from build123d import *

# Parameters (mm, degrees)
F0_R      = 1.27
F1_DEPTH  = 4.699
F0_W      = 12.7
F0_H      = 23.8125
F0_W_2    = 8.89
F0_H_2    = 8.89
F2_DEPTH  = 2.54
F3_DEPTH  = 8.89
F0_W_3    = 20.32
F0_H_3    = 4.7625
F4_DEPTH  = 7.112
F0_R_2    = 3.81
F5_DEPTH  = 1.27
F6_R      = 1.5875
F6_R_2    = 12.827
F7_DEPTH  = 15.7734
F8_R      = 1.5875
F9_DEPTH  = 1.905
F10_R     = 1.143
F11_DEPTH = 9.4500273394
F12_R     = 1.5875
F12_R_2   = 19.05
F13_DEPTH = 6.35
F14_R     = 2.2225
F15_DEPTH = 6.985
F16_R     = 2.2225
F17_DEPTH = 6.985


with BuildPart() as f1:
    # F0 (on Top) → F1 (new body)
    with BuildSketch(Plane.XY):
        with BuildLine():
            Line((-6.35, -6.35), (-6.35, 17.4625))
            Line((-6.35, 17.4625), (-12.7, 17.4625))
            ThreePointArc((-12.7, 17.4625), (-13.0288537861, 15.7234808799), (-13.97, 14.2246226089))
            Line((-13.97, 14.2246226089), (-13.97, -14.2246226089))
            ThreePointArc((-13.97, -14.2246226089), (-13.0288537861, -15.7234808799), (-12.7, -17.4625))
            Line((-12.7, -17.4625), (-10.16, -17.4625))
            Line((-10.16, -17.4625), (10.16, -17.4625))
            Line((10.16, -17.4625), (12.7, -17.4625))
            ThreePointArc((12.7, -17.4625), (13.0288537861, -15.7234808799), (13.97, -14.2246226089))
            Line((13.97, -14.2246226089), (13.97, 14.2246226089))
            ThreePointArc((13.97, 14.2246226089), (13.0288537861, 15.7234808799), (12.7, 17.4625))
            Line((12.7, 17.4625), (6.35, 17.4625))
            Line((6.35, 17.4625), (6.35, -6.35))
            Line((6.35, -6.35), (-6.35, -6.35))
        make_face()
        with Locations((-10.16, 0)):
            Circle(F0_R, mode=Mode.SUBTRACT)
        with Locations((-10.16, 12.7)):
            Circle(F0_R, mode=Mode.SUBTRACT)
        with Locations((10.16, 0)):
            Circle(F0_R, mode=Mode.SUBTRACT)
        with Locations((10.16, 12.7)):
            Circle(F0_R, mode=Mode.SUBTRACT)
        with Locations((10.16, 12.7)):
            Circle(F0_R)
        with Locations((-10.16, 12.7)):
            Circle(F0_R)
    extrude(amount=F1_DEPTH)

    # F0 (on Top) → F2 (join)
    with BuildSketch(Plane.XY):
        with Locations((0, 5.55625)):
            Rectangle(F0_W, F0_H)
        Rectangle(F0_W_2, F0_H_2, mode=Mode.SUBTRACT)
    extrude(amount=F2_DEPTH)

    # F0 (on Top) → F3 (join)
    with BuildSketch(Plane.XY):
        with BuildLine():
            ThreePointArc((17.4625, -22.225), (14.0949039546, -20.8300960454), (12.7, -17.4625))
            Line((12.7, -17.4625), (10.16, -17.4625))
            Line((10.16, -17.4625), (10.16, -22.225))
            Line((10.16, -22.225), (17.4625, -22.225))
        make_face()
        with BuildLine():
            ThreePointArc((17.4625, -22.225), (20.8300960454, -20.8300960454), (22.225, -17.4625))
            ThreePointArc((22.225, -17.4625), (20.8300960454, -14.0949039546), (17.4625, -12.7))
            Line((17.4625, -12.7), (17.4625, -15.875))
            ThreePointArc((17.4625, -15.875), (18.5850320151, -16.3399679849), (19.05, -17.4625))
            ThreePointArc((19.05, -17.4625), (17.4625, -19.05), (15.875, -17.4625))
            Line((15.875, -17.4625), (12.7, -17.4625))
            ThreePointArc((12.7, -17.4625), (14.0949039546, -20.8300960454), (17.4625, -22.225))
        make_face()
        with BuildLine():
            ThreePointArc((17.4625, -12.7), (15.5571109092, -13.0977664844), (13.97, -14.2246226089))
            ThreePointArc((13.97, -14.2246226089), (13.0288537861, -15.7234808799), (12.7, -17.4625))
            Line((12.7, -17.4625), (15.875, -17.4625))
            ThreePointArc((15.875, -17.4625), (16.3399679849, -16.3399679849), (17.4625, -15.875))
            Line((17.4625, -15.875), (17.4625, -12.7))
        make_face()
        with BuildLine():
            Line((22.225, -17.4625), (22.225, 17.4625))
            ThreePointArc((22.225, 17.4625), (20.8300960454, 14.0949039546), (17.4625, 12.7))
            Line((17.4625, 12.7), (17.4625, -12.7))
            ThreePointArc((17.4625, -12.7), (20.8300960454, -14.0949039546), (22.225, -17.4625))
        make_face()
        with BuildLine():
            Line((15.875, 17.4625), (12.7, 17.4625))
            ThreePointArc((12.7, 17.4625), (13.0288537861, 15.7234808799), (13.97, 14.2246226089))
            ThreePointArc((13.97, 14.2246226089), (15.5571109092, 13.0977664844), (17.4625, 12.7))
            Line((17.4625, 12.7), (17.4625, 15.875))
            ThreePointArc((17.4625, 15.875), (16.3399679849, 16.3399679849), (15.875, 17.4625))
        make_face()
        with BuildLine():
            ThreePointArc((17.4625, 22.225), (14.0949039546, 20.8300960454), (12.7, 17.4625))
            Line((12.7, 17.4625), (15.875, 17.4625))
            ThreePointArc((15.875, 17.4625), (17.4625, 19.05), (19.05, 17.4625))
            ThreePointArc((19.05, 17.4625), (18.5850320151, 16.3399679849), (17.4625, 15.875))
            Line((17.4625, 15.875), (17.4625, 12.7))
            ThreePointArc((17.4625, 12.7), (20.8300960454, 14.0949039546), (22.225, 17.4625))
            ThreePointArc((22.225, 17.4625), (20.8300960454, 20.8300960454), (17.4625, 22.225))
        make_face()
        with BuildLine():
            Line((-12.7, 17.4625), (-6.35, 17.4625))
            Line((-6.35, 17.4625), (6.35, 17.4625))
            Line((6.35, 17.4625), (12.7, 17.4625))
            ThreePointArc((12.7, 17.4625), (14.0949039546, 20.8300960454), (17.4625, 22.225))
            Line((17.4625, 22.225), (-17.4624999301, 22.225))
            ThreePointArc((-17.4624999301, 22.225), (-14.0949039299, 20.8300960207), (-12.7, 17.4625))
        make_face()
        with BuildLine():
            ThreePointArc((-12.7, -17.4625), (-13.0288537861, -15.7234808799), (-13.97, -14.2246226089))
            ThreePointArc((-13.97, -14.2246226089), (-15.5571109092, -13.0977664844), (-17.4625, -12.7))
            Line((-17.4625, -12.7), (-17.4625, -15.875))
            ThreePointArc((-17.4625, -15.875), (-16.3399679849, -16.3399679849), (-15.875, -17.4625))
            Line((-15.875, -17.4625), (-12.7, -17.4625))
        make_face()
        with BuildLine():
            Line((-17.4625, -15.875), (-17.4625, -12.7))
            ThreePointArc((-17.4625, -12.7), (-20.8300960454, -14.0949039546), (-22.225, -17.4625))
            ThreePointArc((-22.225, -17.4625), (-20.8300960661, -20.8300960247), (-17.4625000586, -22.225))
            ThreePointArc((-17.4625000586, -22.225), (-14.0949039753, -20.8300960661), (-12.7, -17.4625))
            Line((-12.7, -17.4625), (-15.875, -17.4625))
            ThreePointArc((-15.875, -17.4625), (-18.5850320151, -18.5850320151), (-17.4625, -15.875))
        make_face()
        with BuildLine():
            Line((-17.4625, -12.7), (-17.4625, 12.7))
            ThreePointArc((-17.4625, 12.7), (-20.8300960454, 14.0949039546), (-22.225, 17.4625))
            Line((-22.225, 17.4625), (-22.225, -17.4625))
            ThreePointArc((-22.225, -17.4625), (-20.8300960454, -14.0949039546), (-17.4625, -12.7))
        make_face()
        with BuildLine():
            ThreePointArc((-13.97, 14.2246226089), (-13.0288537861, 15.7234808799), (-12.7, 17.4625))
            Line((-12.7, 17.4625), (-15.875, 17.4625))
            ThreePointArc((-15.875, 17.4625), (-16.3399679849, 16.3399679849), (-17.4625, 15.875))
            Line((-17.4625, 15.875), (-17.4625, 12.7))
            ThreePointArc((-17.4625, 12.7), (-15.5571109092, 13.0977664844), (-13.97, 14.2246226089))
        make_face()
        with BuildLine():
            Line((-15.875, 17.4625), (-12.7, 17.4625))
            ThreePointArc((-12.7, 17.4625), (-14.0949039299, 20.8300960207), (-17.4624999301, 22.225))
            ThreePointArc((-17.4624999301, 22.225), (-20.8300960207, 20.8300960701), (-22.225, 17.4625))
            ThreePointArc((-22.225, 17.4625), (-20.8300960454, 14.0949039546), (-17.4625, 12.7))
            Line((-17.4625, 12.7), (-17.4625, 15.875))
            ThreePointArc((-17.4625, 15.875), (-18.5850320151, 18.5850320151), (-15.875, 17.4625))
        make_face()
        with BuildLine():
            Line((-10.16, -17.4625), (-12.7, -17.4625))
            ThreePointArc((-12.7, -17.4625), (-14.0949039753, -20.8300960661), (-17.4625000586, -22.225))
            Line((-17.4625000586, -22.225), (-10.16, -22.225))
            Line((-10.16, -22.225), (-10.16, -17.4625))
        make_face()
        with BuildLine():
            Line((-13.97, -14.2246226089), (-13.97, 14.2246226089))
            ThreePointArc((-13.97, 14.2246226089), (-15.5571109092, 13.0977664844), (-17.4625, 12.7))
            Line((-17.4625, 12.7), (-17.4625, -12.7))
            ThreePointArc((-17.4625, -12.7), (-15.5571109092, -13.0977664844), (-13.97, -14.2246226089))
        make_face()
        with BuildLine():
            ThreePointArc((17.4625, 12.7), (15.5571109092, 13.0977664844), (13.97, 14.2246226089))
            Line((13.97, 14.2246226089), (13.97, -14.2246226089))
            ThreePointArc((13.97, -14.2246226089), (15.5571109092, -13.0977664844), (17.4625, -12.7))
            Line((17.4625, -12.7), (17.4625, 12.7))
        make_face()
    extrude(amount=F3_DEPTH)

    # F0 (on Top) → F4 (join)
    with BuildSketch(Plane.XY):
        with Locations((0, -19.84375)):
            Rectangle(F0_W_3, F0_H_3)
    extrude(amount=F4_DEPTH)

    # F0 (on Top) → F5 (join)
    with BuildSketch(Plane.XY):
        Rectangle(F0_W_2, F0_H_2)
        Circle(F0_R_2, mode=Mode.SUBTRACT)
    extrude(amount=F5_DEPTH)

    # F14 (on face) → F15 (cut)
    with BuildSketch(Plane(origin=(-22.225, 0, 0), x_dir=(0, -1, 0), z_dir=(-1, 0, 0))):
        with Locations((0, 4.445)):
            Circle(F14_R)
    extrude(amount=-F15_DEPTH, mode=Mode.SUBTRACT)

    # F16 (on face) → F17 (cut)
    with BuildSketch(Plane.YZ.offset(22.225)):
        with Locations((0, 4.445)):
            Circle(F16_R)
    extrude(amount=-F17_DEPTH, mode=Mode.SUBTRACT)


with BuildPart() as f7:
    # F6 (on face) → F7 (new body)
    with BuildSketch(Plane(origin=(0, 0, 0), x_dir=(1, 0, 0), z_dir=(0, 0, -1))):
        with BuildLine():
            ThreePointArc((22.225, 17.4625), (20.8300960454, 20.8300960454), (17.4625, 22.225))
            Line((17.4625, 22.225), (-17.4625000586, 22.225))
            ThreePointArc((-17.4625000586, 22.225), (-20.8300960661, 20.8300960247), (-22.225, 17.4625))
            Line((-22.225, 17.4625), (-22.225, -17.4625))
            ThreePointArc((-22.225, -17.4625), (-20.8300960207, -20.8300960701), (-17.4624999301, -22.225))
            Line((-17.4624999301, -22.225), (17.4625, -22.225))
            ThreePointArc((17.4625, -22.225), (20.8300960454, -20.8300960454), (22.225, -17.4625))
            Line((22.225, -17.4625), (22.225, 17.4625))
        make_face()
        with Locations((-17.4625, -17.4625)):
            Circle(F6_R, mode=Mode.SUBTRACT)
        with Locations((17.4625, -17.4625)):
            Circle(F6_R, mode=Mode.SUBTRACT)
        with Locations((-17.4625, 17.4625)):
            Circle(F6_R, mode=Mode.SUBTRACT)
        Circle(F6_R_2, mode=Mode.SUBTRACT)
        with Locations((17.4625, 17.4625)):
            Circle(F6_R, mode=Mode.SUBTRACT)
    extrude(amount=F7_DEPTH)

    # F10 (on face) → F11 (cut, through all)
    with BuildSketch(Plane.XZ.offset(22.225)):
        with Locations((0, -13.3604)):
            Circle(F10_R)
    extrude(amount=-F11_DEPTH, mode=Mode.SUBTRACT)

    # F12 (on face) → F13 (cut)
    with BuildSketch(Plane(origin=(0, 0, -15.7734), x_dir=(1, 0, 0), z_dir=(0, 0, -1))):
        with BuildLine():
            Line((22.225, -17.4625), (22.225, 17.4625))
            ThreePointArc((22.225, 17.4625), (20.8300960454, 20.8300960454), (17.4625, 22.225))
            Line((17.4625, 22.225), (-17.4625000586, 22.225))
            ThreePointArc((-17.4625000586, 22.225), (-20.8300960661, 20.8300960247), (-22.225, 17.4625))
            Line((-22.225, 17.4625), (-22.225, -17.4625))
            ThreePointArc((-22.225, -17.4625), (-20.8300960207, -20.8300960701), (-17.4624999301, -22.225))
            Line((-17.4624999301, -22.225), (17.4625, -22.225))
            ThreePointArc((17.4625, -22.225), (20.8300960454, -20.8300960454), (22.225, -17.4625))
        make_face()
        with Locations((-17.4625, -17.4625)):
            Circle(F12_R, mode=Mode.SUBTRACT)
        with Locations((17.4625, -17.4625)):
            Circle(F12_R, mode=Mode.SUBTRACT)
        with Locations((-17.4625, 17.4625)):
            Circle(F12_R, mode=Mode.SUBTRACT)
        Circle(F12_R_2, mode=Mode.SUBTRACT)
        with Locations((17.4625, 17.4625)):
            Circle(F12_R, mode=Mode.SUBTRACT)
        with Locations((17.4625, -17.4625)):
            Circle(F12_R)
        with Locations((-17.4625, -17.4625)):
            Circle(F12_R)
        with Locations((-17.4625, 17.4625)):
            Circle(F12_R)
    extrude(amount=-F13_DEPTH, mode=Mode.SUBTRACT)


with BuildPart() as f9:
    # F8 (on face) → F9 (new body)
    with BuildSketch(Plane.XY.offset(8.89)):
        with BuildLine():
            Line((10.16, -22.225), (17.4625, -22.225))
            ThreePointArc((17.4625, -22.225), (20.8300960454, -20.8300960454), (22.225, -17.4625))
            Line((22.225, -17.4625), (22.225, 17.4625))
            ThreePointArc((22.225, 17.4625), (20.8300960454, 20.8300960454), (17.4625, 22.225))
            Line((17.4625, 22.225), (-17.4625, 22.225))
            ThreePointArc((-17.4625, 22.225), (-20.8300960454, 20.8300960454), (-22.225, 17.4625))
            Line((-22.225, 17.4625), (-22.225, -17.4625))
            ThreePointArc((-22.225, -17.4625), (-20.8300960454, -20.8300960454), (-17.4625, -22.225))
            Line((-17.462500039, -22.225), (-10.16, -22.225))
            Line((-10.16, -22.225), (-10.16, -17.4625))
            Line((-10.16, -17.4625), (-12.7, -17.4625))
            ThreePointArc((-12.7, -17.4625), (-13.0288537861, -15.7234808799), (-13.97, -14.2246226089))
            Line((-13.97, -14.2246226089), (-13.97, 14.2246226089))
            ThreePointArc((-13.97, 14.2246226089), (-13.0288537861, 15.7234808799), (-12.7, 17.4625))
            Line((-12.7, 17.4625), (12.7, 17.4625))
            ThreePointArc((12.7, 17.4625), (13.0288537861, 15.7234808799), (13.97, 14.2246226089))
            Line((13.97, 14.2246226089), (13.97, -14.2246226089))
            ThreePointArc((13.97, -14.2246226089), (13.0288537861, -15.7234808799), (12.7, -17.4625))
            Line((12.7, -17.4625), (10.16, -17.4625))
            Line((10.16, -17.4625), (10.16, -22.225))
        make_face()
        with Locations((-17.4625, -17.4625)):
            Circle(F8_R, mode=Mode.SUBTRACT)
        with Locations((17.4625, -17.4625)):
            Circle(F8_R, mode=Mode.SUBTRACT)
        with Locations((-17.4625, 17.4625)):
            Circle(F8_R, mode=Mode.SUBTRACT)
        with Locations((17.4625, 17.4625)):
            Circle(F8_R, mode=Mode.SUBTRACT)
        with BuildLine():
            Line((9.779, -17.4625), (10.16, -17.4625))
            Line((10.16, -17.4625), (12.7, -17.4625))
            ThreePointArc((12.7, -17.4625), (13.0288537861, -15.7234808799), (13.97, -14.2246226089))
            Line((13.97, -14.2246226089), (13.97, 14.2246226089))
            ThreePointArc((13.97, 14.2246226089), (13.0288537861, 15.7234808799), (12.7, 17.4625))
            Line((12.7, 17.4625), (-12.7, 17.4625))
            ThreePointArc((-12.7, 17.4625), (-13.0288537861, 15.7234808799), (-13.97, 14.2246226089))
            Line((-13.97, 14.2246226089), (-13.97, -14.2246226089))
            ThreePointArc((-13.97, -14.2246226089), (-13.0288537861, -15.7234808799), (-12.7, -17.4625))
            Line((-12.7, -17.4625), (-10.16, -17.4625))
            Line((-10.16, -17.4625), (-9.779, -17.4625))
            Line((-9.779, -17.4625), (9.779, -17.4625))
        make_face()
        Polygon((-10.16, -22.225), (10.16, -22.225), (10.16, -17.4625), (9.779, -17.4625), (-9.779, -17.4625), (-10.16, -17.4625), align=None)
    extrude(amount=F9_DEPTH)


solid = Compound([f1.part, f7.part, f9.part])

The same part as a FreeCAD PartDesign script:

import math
import FreeCAD as App
import Part
import Sketcher
from FreeCAD import Vector
Q = App.Units.Quantity

doc = App.newDocument("Part")
params = doc.addObject("Spreadsheet::Sheet", "Params")
for row, (alias, value) in enumerate([
    ("sketch1_diameter", "0.1 in"),
    ("sketch1_width", "1 in"),
    ("sketch1_width2", "0.5 in"),
    ("sketch1_radius", "0.1875 in"),
    ("sketch1_height", "0.9375 in"),
    ("pad1_length", "0.185 in"),
    ("sketch2_width", "0.5 in"),
    ("sketch2_width2", "0.35 in"),
    ("sketch2_height", "0.9375 in"),
    ("pad2_length", "0.1 in"),
    ("sketch3_width", "1 in"),
    ("sketch3_width2", "0.1 in"),
    ("sketch3_radius", "0.1875 in"),
    ("sketch3_radius2", "0.0625 in"),
    ("pad3_length", "0.35 in"),
    ("sketch4_width", "0.8 in"),
    ("sketch4_height", "0.1875 in"),
    ("pad4_length", "0.28 in"),
    ("sketch5_diameter", "0.3 in"),
    ("sketch5_width", "0.35 in"),
    ("pad5_length", "0.05 in"),
    ("sketch6_diameter", "0.175 in"),
    ("pocket1_length", "0.275 in"),
    ("sketch7_diameter", "0.175 in"),
    ("pocket2_length", "0.275 in"),
    ("sketch8_diameter", "1.01 in"),
    ("sketch8_diameter2", "0.125 in"),
    ("sketch8_radius", "0.1875 in"),
    ("sketch8_width", "1.375 in"),
    ("pad6_length", "0.621 in"),
    ("sketch9_diameter", "0.09 in"),
    ("pocket3_length", "9.450027 mm"),
    ("sketch10_diameter", "1.5 in"),
    ("sketch10_diameter2", "0.125 in"),
    ("sketch10_radius", "0.1875 in"),
    ("sketch10_width", "1.375 in"),
    ("pocket4_length", "0.25 in"),
    ("sketch11_diameter", "0.125 in"),
    ("sketch11_radius", "0.1875 in"),
    ("sketch11_width", "1.375 in"),
    ("pad7_length", "0.075 in"),
], start=1):
    params.set(f"A{row}", alias)
    params.set(f"B{row}", "=" + value)
    params.setAlias(f"B{row}", alias)

body = doc.addObject("PartDesign::Body", "Body")

# Sketch on XY plane
sketch1 = body.newObject("Sketcher::SketchObject", "Sketch")
sketch1.AttachmentSupport = (doc.getObject("XY_Plane"), [""])
sketch1.MapMode = "FlatFace"
sketch1.addGeometry([
    Part.LineSegment(Vector(-6.3, -6.3, 0), Vector(-6.3, 17.5, 0)),  # 0
    Part.LineSegment(Vector(-6.3, 17.5, 0), Vector(-12.7, 17.5, 0)),  # 1
    Part.ArcOfCircle(Part.Circle(Vector(-17.5, 17.5, 0), Vector(0, 0, 1), 4.8), math.radians(-43), math.radians(0)),  # 2
    Part.LineSegment(Vector(-14, 14.2, 0), Vector(-14, -14.2, 0)),  # 3
    Part.ArcOfCircle(Part.Circle(Vector(-17.5, -17.5, 0), Vector(0, 0, 1), 4.8), math.radians(0), math.radians(43)),  # 4
    Part.LineSegment(Vector(-12.7, -17.5, 0), Vector(12.7, -17.5, 0)),  # 5
    Part.ArcOfCircle(Part.Circle(Vector(17.5, -17.5, 0), Vector(0, 0, 1), 4.8), math.radians(137), math.radians(180)),  # 6
    Part.LineSegment(Vector(14, -14.2, 0), Vector(14, 14.2, 0)),  # 7
    Part.ArcOfCircle(Part.Circle(Vector(17.5, 17.5, 0), Vector(0, 0, 1), 4.8), math.radians(180), math.radians(223)),  # 8
    Part.LineSegment(Vector(12.7, 17.5, 0), Vector(6.3, 17.5, 0)),  # 9
    Part.LineSegment(Vector(6.3, 17.5, 0), Vector(6.3, -6.3, 0)),  # 10
    Part.LineSegment(Vector(6.3, -6.3, 0), Vector(-6.3, -6.3, 0)),  # 11
    Part.Circle(Vector(-10.2, 0, 0), Vector(0, 0, 1), 1.3),  # 12
    Part.Circle(Vector(10.2, 0, 0), Vector(0, 0, 1), 1.3),  # 13
], False)
sketch1.addConstraint([
    Sketcher.Constraint("Coincident", 0, 2, 1, 1),
    Sketcher.Constraint("Coincident", 1, 2, 2, 2),
    Sketcher.Constraint("Coincident", 2, 1, 3, 1),
    Sketcher.Constraint("Coincident", 3, 2, 4, 2),
    Sketcher.Constraint("Coincident", 4, 1, 5, 1),
    Sketcher.Constraint("Coincident", 5, 2, 6, 2),
    Sketcher.Constraint("Coincident", 6, 1, 7, 1),
    Sketcher.Constraint("Coincident", 7, 2, 8, 2),
    Sketcher.Constraint("Coincident", 8, 1, 9, 1),
    Sketcher.Constraint("Coincident", 9, 2, 10, 1),
    Sketcher.Constraint("Coincident", 10, 2, 11, 1),
    Sketcher.Constraint("Coincident", 11, 2, 0, 1),
    Sketcher.Constraint("Vertical", 0),
    Sketcher.Constraint("Horizontal", 1),
    Sketcher.Constraint("Vertical", 3),
    Sketcher.Constraint("Horizontal", 5),
    Sketcher.Constraint("Vertical", 7),
    Sketcher.Constraint("Horizontal", 9),
    Sketcher.Constraint("Vertical", 10),
    Sketcher.Constraint("Horizontal", 11),
    Sketcher.Constraint("Equal", 2, 4),
    Sketcher.Constraint("Equal", 4, 6),
    Sketcher.Constraint("Equal", 6, 8),
    Sketcher.Constraint("Equal", 12, 13),
    Sketcher.Constraint("Symmetric", 2, 3, 6, 3, -1, 1),
    Sketcher.Constraint("Symmetric", 4, 3, 8, 3, -1, 1),
    Sketcher.Constraint("Symmetric", 12, 3, 13, 3, -1, 1),
    Sketcher.Constraint("Symmetric", 4, 3, 6, 3, -2),
    Sketcher.Constraint("Symmetric", 0, 2, 9, 2, -2),
    Sketcher.Constraint("PointOnObject", 12, 3, -1),
    Sketcher.Constraint("Horizontal", 8, 3, 0, 2),
    Sketcher.Constraint("Horizontal", 6, 3, 4, 1),
    Sketcher.Constraint("Horizontal", 3, 2, 6, 1),
    Sketcher.Constraint("Diameter", 12, Q("0.1 in")),
    Sketcher.Constraint("DistanceX", 5, 1, 5, 2, Q("1 in")),
    Sketcher.Constraint("DistanceX", 11, 2, 11, 1, Q("0.5 in")),
    Sketcher.Constraint("Radius", 2, Q("0.1875 in")),
    Sketcher.Constraint("DistanceX", 12, 3, -1, 1, Q("0.4 in")),
    Sketcher.Constraint("DistanceX", 2, 1, 0, 2, Q("0.3 in")),
    Sketcher.Constraint("DistanceY", 0, 1, 0, 2, Q("0.9375 in")),
    Sketcher.Constraint("DistanceY", 10, 2, -1, 1, Q("0.25 in")),
])
sketch1.setExpression("Constraints[33]", "Params.sketch1_diameter")
sketch1.setExpression("Constraints[34]", "Params.sketch1_width")
sketch1.setExpression("Constraints[35]", "Params.sketch1_width2")
sketch1.setExpression("Constraints[36]", "Params.sketch1_radius")
sketch1.setExpression("Constraints[39]", "Params.sketch1_height")
pad1 = body.newObject("PartDesign::Pad", "Pad")
pad1.Profile = sketch1
pad1.setExpression("Length", "Params.pad1_length")

# Sketch on XY plane
sketch2 = body.newObject("Sketcher::SketchObject", "Sketch001")
sketch2.AttachmentSupport = (doc.getObject("XY_Plane"), [""])
sketch2.MapMode = "FlatFace"
sketch2.addGeometry([
    Part.LineSegment(Vector(-6, 17, 0), Vector(-6, -6, 0)),  # 0
    Part.LineSegment(Vector(-6, -6, 0), Vector(6, -6, 0)),  # 1
    Part.LineSegment(Vector(6, -6, 0), Vector(6, 17, 0)),  # 2
    Part.LineSegment(Vector(6, 17, 0), Vector(-6, 17, 0)),  # 3
    Part.LineSegment(Vector(4, -4, 0), Vector(-4, -4, 0)),  # 4
    Part.LineSegment(Vector(-4, -4, 0), Vector(-4, 4, 0)),  # 5
    Part.LineSegment(Vector(-4, 4, 0), Vector(4, 4, 0)),  # 6
    Part.LineSegment(Vector(4, 4, 0), Vector(4, -4, 0)),  # 7
], False)
sketch2.addConstraint([
    Sketcher.Constraint("Coincident", 0, 2, 1, 1),
    Sketcher.Constraint("Coincident", 1, 2, 2, 1),
    Sketcher.Constraint("Coincident", 2, 2, 3, 1),
    Sketcher.Constraint("Coincident", 3, 2, 0, 1),
    Sketcher.Constraint("Coincident", 4, 2, 5, 1),
    Sketcher.Constraint("Coincident", 5, 2, 6, 1),
    Sketcher.Constraint("Coincident", 6, 2, 7, 1),
    Sketcher.Constraint("Coincident", 7, 2, 4, 1),
    Sketcher.Constraint("Vertical", 0),
    Sketcher.Constraint("Horizontal", 1),
    Sketcher.Constraint("Vertical", 2),
    Sketcher.Constraint("Horizontal", 3),
    Sketcher.Constraint("Horizontal", 4),
    Sketcher.Constraint("Vertical", 5),
    Sketcher.Constraint("Horizontal", 6),
    Sketcher.Constraint("Vertical", 7),
    Sketcher.Constraint("Symmetric", 4, 2, 6, 2, -1, 1),
    Sketcher.Constraint("Equal", 6, 5),
    Sketcher.Constraint("DistanceX", 1, 1, 1, 2, Q("0.5 in")),
    Sketcher.Constraint("DistanceX", 4, 2, 4, 1, Q("0.35 in")),
    Sketcher.Constraint("DistanceY", 0, 2, 0, 1, Q("0.9375 in")),
    Sketcher.Constraint("DistanceX", 0, 2, -1, 1, Q("0.25 in")),
    Sketcher.Constraint("DistanceY", 0, 2, -1, 1, Q("0.25 in")),
])
sketch2.setExpression("Constraints[18]", "Params.sketch2_width")
sketch2.setExpression("Constraints[19]", "Params.sketch2_width2")
sketch2.setExpression("Constraints[20]", "Params.sketch2_height")
pad2 = body.newObject("PartDesign::Pad", "Pad001")
pad2.Profile = sketch2
pad2.setExpression("Length", "Params.pad2_length")

# Sketch on XY plane
sketch3 = body.newObject("Sketcher::SketchObject", "Sketch002")
sketch3.AttachmentSupport = (doc.getObject("XY_Plane"), [""])
sketch3.MapMode = "FlatFace"
sketch3.addGeometry([
    Part.LineSegment(Vector(10.2, -17.5, 0), Vector(10.2, -22.2, 0)),  # 0
    Part.LineSegment(Vector(10.2, -22.2, 0), Vector(17.5, -22.2, 0)),  # 1
    Part.ArcOfCircle(Part.Circle(Vector(17.5, -17.5, 0), Vector(0, 0, 1), 4.8), math.radians(-90), math.radians(0)),  # 2
    Part.LineSegment(Vector(22.2, -17.5, 0), Vector(22.2, 17.5, 0)),  # 3
    Part.ArcOfCircle(Part.Circle(Vector(17.5, 17.5, 0), Vector(0, 0, 1), 4.8), math.radians(0), math.radians(90)),  # 4
    Part.LineSegment(Vector(17.5, 22.2, 0), Vector(-17.5, 22.2, 0)),  # 5
    Part.ArcOfCircle(Part.Circle(Vector(-17.5, 17.5, 0), Vector(0, 0, 1), 4.8), math.radians(90), math.radians(180)),  # 6
    Part.LineSegment(Vector(-22.2, 17.5, 0), Vector(-22.2, -17.5, 0)),  # 7
    Part.ArcOfCircle(Part.Circle(Vector(-17.5, -17.5, 0), Vector(0, 0, 1), 4.8), math.radians(180), math.radians(270)),  # 8
    Part.LineSegment(Vector(-17.5, -22.2, 0), Vector(-10.2, -22.2, 0)),  # 9
    Part.LineSegment(Vector(-10.2, -22.2, 0), Vector(-10.2, -17.5, 0)),  # 10
    Part.LineSegment(Vector(-10.2, -17.5, 0), Vector(-12.7, -17.5, 0)),  # 11
    Part.ArcOfCircle(Part.Circle(Vector(-17.5, -17.5, 0), Vector(0, 0, 1), 4.8), math.radians(0), math.radians(43)),  # 12
    Part.LineSegment(Vector(-14, -14.2, 0), Vector(-14, 14.2, 0)),  # 13
    Part.ArcOfCircle(Part.Circle(Vector(-17.5, 17.5, 0), Vector(0, 0, 1), 4.8), math.radians(-43), math.radians(0)),  # 14
    Part.LineSegment(Vector(-12.7, 17.5, 0), Vector(12.7, 17.5, 0)),  # 15
    Part.ArcOfCircle(Part.Circle(Vector(17.5, 17.5, 0), Vector(0, 0, 1), 4.8), math.radians(180), math.radians(223)),  # 16
    Part.LineSegment(Vector(14, 14.2, 0), Vector(14, -14.2, 0)),  # 17
    Part.ArcOfCircle(Part.Circle(Vector(17.5, -17.5, 0), Vector(0, 0, 1), 4.8), math.radians(137), math.radians(180)),  # 18
    Part.LineSegment(Vector(12.7, -17.5, 0), Vector(10.2, -17.5, 0)),  # 19
    Part.ArcOfCircle(Part.Circle(Vector(17.5, -17.5, 0), Vector(0, 0, 1), 1.6), math.radians(0), math.radians(90)),  # 20
    Part.ArcOfCircle(Part.Circle(Vector(17.5, -17.5, 0), Vector(0, 0, 1), 1.6), math.radians(180), math.radians(360)),  # 21
    Part.ArcOfCircle(Part.Circle(Vector(17.5, -17.5, 0), Vector(0, 0, 1), 1.6), math.radians(90), math.radians(180)),  # 22
    Part.ArcOfCircle(Part.Circle(Vector(17.5, 17.5, 0), Vector(0, 0, 1), 1.6), math.radians(0), math.radians(180)),  # 23
    Part.ArcOfCircle(Part.Circle(Vector(17.5, 17.5, 0), Vector(0, 0, 1), 1.6), math.radians(-90), math.radians(0)),  # 24
    Part.ArcOfCircle(Part.Circle(Vector(17.5, 17.5, 0), Vector(0, 0, 1), 1.6), math.radians(180), math.radians(270)),  # 25
    Part.ArcOfCircle(Part.Circle(Vector(-17.5, 17.5, 0), Vector(0, 0, 1), 1.6), math.radians(0), math.radians(270)),  # 26
    Part.ArcOfCircle(Part.Circle(Vector(-17.5, 17.5, 0), Vector(0, 0, 1), 1.6), math.radians(-90), math.radians(0)),  # 27
    Part.ArcOfCircle(Part.Circle(Vector(-17.5, -17.5, 0), Vector(0, 0, 1), 1.6), math.radians(90), math.radians(360)),  # 28
    Part.ArcOfCircle(Part.Circle(Vector(-17.5, -17.5, 0), Vector(0, 0, 1), 1.6), math.radians(0), math.radians(90)),  # 29
], False)
sketch3.addConstraint([
    Sketcher.Constraint("Coincident", 0, 2, 1, 1),
    Sketcher.Constraint("Tangent", 1, 2, 2, 1),
    Sketcher.Constraint("Tangent", 2, 2, 3, 1),
    Sketcher.Constraint("Tangent", 3, 2, 4, 1),
    Sketcher.Constraint("Tangent", 4, 2, 5, 1),
    Sketcher.Constraint("Tangent", 5, 2, 6, 1),
    Sketcher.Constraint("Tangent", 6, 2, 7, 1),
    Sketcher.Constraint("Tangent", 7, 2, 8, 1),
    Sketcher.Constraint("Tangent", 8, 2, 9, 1),
    Sketcher.Constraint("Coincident", 9, 2, 10, 1),
    Sketcher.Constraint("Coincident", 10, 2, 11, 1),
    Sketcher.Constraint("Coincident", 11, 2, 12, 1),
    Sketcher.Constraint("Coincident", 12, 2, 13, 1),
    Sketcher.Constraint("Coincident", 13, 2, 14, 1),
    Sketcher.Constraint("Coincident", 14, 2, 15, 1),
    Sketcher.Constraint("Coincident", 15, 2, 16, 1),
    Sketcher.Constraint("Coincident", 16, 2, 17, 1),
    Sketcher.Constraint("Coincident", 17, 2, 18, 1),
    Sketcher.Constraint("Coincident", 18, 2, 19, 1),
    Sketcher.Constraint("Coincident", 19, 2, 0, 1),
    Sketcher.Constraint("Tangent", 20, 1, 21, 2),
    Sketcher.Constraint("Tangent", 21, 1, 22, 2),
    Sketcher.Constraint("Tangent", 22, 1, 20, 2),
    Sketcher.Constraint("Tangent", 23, 1, 24, 2),
    Sketcher.Constraint("Tangent", 24, 1, 25, 2),
    Sketcher.Constraint("Tangent", 25, 1, 23, 2),
    Sketcher.Constraint("Tangent", 26, 1, 27, 2),
    Sketcher.Constraint("Coincident", 27, 1, 26, 2),
    Sketcher.Constraint("Tangent", 28, 1, 29, 2),
    Sketcher.Constraint("Coincident", 29, 1, 28, 2),
    Sketcher.Constraint("Vertical", 0),
    Sketcher.Constraint("Horizontal", 1),
    Sketcher.Constraint("Vertical", 3),
    Sketcher.Constraint("Horizontal", 5),
    Sketcher.Constraint("Vertical", 7),
    Sketcher.Constraint("Horizontal", 9),
    Sketcher.Constraint("Vertical", 10),
    Sketcher.Constraint("Horizontal", 11),
    Sketcher.Constraint("Vertical", 13),
    Sketcher.Constraint("Horizontal", 15),
    Sketcher.Constraint("Vertical", 17),
    Sketcher.Constraint("Horizontal", 19),
    Sketcher.Constraint("Coincident", 12, 3, 8, 3),
    Sketcher.Constraint("Coincident", 14, 3, 6, 3),
    Sketcher.Constraint("Coincident", 16, 3, 4, 3),
    Sketcher.Constraint("Coincident", 18, 3, 2, 3),
    Sketcher.Constraint("Coincident", 20, 3, 2, 3),
    Sketcher.Constraint("Coincident", 23, 3, 4, 3),
    Sketcher.Constraint("Coincident", 26, 3, 6, 3),
    Sketcher.Constraint("Coincident", 28, 3, 8, 3),
    Sketcher.Constraint("Equal", 2, 4),
    Sketcher.Constraint("Equal", 4, 6),
    Sketcher.Constraint("Equal", 6, 8),
    Sketcher.Constraint("Equal", 8, 12),
    Sketcher.Constraint("Equal", 12, 14),
    Sketcher.Constraint("Equal", 14, 16),
    Sketcher.Constraint("Equal", 16, 18),
    Sketcher.Constraint("Equal", 22, 23),
    Sketcher.Constraint("Equal", 25, 26),
    Sketcher.Constraint("Equal", 27, 28),
    Sketcher.Constraint("Symmetric", 2, 3, 6, 3, -1, 1),
    Sketcher.Constraint("Symmetric", 12, 2, 16, 2, -1, 1),
    Sketcher.Constraint("Symmetric", 10, 2, 19, 2, -2),
    Sketcher.Constraint("Horizontal", 7, 2, 10, 2),
    Sketcher.Constraint("Horizontal", 6, 2, 14, 2),
    Sketcher.Constraint("Horizontal", 19, 2, 20, 1),
    Sketcher.Constraint("Horizontal", 20, 1, 21, 1),
    Sketcher.Constraint("Horizontal", 15, 2, 23, 1),
    Sketcher.Constraint("Horizontal", 23, 1, 25, 1),
    Sketcher.Constraint("Horizontal", 25, 1, 26, 1),
    Sketcher.Constraint("Horizontal", 21, 1, 29, 1),
    Sketcher.Constraint("Vertical", 4, 2, 22, 1),
    Sketcher.Constraint("Vertical", 22, 1, 24, 1),
    Sketcher.Constraint("Vertical", 8, 2, 27, 1),
    Sketcher.Constraint("Vertical", 27, 1, 28, 1),
    Sketcher.Constraint("Equal", 5, 3),
    Sketcher.Constraint("DistanceX", 15, 1, 15, 2, Q("1 in")),
    Sketcher.Constraint("DistanceX", 11, 2, 11, 1, Q("0.1 in")),
    Sketcher.Constraint("Radius", 2, Q("0.1875 in")),
    Sketcher.Constraint("Radius", 20, Q("0.0625 in")),
    Sketcher.Constraint("DistanceX", 12, 2, -1, 1, Q("0.55 in")),
])
sketch3.setExpression("Constraints[76]", "Params.sketch3_width")
sketch3.setExpression("Constraints[77]", "Params.sketch3_width2")
sketch3.setExpression("Constraints[78]", "Params.sketch3_radius")
sketch3.setExpression("Constraints[79]", "Params.sketch3_radius2")
pad3 = body.newObject("PartDesign::Pad", "Pad002")
pad3.Profile = sketch3
pad3.setExpression("Length", "Params.pad3_length")

# Sketch on XY plane
sketch4 = body.newObject("Sketcher::SketchObject", "Sketch003")
sketch4.AttachmentSupport = (doc.getObject("XY_Plane"), [""])
sketch4.MapMode = "FlatFace"
sketch4.addGeometry([
    Part.LineSegment(Vector(-10.2, -17.5, 0), Vector(-10.2, -22.2, 0)),
    Part.LineSegment(Vector(-10.2, -22.2, 0), Vector(10.2, -22.2, 0)),
    Part.LineSegment(Vector(10.2, -22.2, 0), Vector(10.2, -17.5, 0)),
    Part.LineSegment(Vector(10.2, -17.5, 0), Vector(-10.2, -17.5, 0)),
], False)
sketch4.addConstraint([
    Sketcher.Constraint("Coincident", 0, 2, 1, 1),
    Sketcher.Constraint("Coincident", 1, 2, 2, 1),
    Sketcher.Constraint("Coincident", 2, 2, 3, 1),
    Sketcher.Constraint("Coincident", 3, 2, 0, 1),
    Sketcher.Constraint("Vertical", 0),
    Sketcher.Constraint("Horizontal", 1),
    Sketcher.Constraint("Vertical", 2),
    Sketcher.Constraint("Horizontal", 3),
    Sketcher.Constraint("DistanceX", 1, 1, 1, 2, Q("0.8 in")),
    Sketcher.Constraint("DistanceX", 0, 2, -1, 1, Q("0.4 in")),
    Sketcher.Constraint("DistanceY", 0, 2, 0, 1, Q("0.1875 in")),
    Sketcher.Constraint("DistanceY", 0, 2, -1, 1, Q("0.875 in")),
])
sketch4.setExpression("Constraints[8]", "Params.sketch4_width")
sketch4.setExpression("Constraints[10]", "Params.sketch4_height")
pad4 = body.newObject("PartDesign::Pad", "Pad003")
pad4.Profile = sketch4
pad4.setExpression("Length", "Params.pad4_length")

# Sketch on XY plane
sketch5 = body.newObject("Sketcher::SketchObject", "Sketch004")
sketch5.AttachmentSupport = (doc.getObject("XY_Plane"), [""])
sketch5.MapMode = "FlatFace"
sketch5.addGeometry([
    Part.LineSegment(Vector(-4.4, 4.4, 0), Vector(-4.4, -4.4, 0)),  # 0
    Part.LineSegment(Vector(-4.4, -4.4, 0), Vector(4.4, -4.4, 0)),  # 1
    Part.LineSegment(Vector(4.4, -4.4, 0), Vector(4.4, 4.4, 0)),  # 2
    Part.LineSegment(Vector(4.4, 4.4, 0), Vector(-4.4, 4.4, 0)),  # 3
    Part.Circle(Vector(0, 0, 0), Vector(0, 0, 1), 3.8),  # 4
], False)
sketch5.addConstraint([
    Sketcher.Constraint("Coincident", 0, 2, 1, 1),
    Sketcher.Constraint("Coincident", 1, 2, 2, 1),
    Sketcher.Constraint("Coincident", 2, 2, 3, 1),
    Sketcher.Constraint("Coincident", 3, 2, 0, 1),
    Sketcher.Constraint("Vertical", 0),
    Sketcher.Constraint("Horizontal", 1),
    Sketcher.Constraint("Vertical", 2),
    Sketcher.Constraint("Horizontal", 3),
    Sketcher.Constraint("Coincident", 4, 3, -1, 1),
    Sketcher.Constraint("Symmetric", 0, 2, 2, 2, -1, 1),
    Sketcher.Constraint("Equal", 3, 0),
    Sketcher.Constraint("Diameter", 4, Q("0.3 in")),
    Sketcher.Constraint("DistanceX", 1, 1, 1, 2, Q("0.35 in")),
])
sketch5.setExpression("Constraints[11]", "Params.sketch5_diameter")
sketch5.setExpression("Constraints[12]", "Params.sketch5_width")
pad5 = body.newObject("PartDesign::Pad", "Pad004")
pad5.Profile = sketch5
pad5.setExpression("Length", "Params.pad5_length")

# Sketch on YZ plane
sketch6 = body.newObject("Sketcher::SketchObject", "Sketch005")
sketch6.AttachmentSupport = (doc.getObject("YZ_Plane"), [""])
sketch6.MapMode = "FlatFace"
sketch6.AttachmentOffset = App.Placement(Vector(0, 0, -0.875 * 25.4), App.Rotation())
sketch6.addGeometry(Part.Circle(Vector(0, 4.4, 0), Vector(0, 0, 1), 2.2), False)
sketch6.addConstraint([
    Sketcher.Constraint("PointOnObject", 0, 3, -2),
    Sketcher.Constraint("Diameter", 0, Q("0.175 in")),
    Sketcher.Constraint("DistanceY", -1, 1, 0, 3, Q("0.175 in")),
])
sketch6.setExpression("Constraints[1]", "Params.sketch6_diameter")
pocket1 = body.newObject("PartDesign::Pocket", "Pocket")
pocket1.Profile = sketch6
pocket1.setExpression("Length", "Params.pocket1_length")
pocket1.Reversed = True

# Sketch on YZ plane
sketch7 = body.newObject("Sketcher::SketchObject", "Sketch006")
sketch7.AttachmentSupport = (doc.getObject("YZ_Plane"), [""])
sketch7.MapMode = "FlatFace"
sketch7.AttachmentOffset = App.Placement(Vector(0, 0, 0.875 * 25.4), App.Rotation())
sketch7.addGeometry(Part.Circle(Vector(0, 4.4, 0), Vector(0, 0, 1), 2.2), False)
sketch7.addConstraint([
    Sketcher.Constraint("PointOnObject", 0, 3, -2),
    Sketcher.Constraint("Diameter", 0, Q("0.175 in")),
    Sketcher.Constraint("DistanceY", -1, 1, 0, 3, Q("0.175 in")),
])
sketch7.setExpression("Constraints[1]", "Params.sketch7_diameter")
pocket2 = body.newObject("PartDesign::Pocket", "Pocket001")
pocket2.Profile = sketch7
pocket2.setExpression("Length", "Params.pocket2_length")
body2 = doc.addObject("PartDesign::Body", "Body001")

# Sketch on XY plane
sketch8 = body2.newObject("Sketcher::SketchObject", "Sketch007")
sketch8.AttachmentSupport = (doc.getObject("XY_Plane001"), [""])
sketch8.MapMode = "FlatFace"
sketch8.addGeometry([
    Part.ArcOfCircle(Part.Circle(Vector(17.5, -17.5, 0), Vector(0, 0, 1), 4.8), math.radians(-90), math.radians(0)),  # 0
    Part.LineSegment(Vector(17.5, -22.2, 0), Vector(-17.5, -22.2, 0)),  # 1
    Part.ArcOfCircle(Part.Circle(Vector(-17.5, -17.5, 0), Vector(0, 0, 1), 4.8), math.radians(180), math.radians(270)),  # 2
    Part.LineSegment(Vector(-22.2, -17.5, 0), Vector(-22.2, 17.5, 0)),  # 3
    Part.ArcOfCircle(Part.Circle(Vector(-17.5, 17.5, 0), Vector(0, 0, 1), 4.8), math.radians(90), math.radians(180)),  # 4
    Part.LineSegment(Vector(-17.5, 22.2, 0), Vector(17.5, 22.2, 0)),  # 5
    Part.ArcOfCircle(Part.Circle(Vector(17.5, 17.5, 0), Vector(0, 0, 1), 4.8), math.radians(0), math.radians(90)),  # 6
    Part.LineSegment(Vector(22.2, 17.5, 0), Vector(22.2, -17.5, 0)),  # 7
    Part.Circle(Vector(-17.5, 17.5, 0), Vector(0, 0, 1), 1.6),  # 8
    Part.Circle(Vector(17.5, 17.5, 0), Vector(0, 0, 1), 1.6),  # 9
    Part.Circle(Vector(-17.5, -17.5, 0), Vector(0, 0, 1), 1.6),  # 10
    Part.Circle(Vector(0, 0, 0), Vector(0, 0, 1), 12.8),  # 11
    Part.Circle(Vector(17.5, -17.5, 0), Vector(0, 0, 1), 1.6),  # 12
], False)
sketch8.addConstraint([
    Sketcher.Constraint("Tangent", 0, 1, 1, 1),
    Sketcher.Constraint("Tangent", 1, 2, 2, 2),
    Sketcher.Constraint("Tangent", 2, 1, 3, 1),
    Sketcher.Constraint("Tangent", 3, 2, 4, 2),
    Sketcher.Constraint("Tangent", 4, 1, 5, 1),
    Sketcher.Constraint("Tangent", 5, 2, 6, 2),
    Sketcher.Constraint("Tangent", 6, 1, 7, 1),
    Sketcher.Constraint("Tangent", 7, 2, 0, 2),
    Sketcher.Constraint("Horizontal", 1),
    Sketcher.Constraint("Vertical", 3),
    Sketcher.Constraint("Horizontal", 5),
    Sketcher.Constraint("Vertical", 7),
    Sketcher.Constraint("Coincident", 11, 3, -1, 1),
    Sketcher.Constraint("Coincident", 8, 3, 4, 3),
    Sketcher.Constraint("Coincident", 9, 3, 6, 3),
    Sketcher.Constraint("Coincident", 10, 3, 2, 3),
    Sketcher.Constraint("Coincident", 12, 3, 0, 3),
    Sketcher.Constraint("Equal", 0, 2),
    Sketcher.Constraint("Equal", 2, 4),
    Sketcher.Constraint("Equal", 4, 6),
    Sketcher.Constraint("Equal", 8, 9),
    Sketcher.Constraint("Equal", 9, 10),
    Sketcher.Constraint("Equal", 10, 12),
    Sketcher.Constraint("Symmetric", 0, 3, 4, 3, -1, 1),
    Sketcher.Constraint("Equal", 5, 3),
    Sketcher.Constraint("Diameter", 11, Q("1.01 in")),
    Sketcher.Constraint("Diameter", 8, Q("0.125 in")),
    Sketcher.Constraint("Radius", 0, Q("0.1875 in")),
    Sketcher.Constraint("DistanceX", 1, 2, 1, 1, Q("1.375 in")),
])
sketch8.setExpression("Constraints[25]", "Params.sketch8_diameter")
sketch8.setExpression("Constraints[26]", "Params.sketch8_diameter2")
sketch8.setExpression("Constraints[27]", "Params.sketch8_radius")
sketch8.setExpression("Constraints[28]", "Params.sketch8_width")
pad6 = body2.newObject("PartDesign::Pad", "Pad005")
pad6.Profile = sketch8
pad6.setExpression("Length", "Params.pad6_length")
pad6.Reversed = True

# Sketch on XZ plane
sketch9 = body2.newObject("Sketcher::SketchObject", "Sketch008")
sketch9.AttachmentSupport = (doc.getObject("XZ_Plane001"), [""])
sketch9.MapMode = "FlatFace"
sketch9.AttachmentOffset = App.Placement(Vector(0, 0, 0.875 * 25.4), App.Rotation())
sketch9.addGeometry(Part.Circle(Vector(0, -13.4, 0), Vector(0, 0, 1), 1.1), False)
sketch9.addConstraint([
    Sketcher.Constraint("PointOnObject", 0, 3, -2),
    Sketcher.Constraint("Diameter", 0, Q("0.09 in")),
    Sketcher.Constraint("DistanceY", 0, 3, -1, 1, Q("0.526 in")),
])
sketch9.setExpression("Constraints[1]", "Params.sketch9_diameter")
pocket3 = body2.newObject("PartDesign::Pocket", "Pocket002")
pocket3.Profile = sketch9
pocket3.setExpression("Length", "Params.pocket3_length")

# Sketch on XY plane
sketch10 = body2.newObject("Sketcher::SketchObject", "Sketch009")
sketch10.AttachmentSupport = (doc.getObject("XY_Plane001"), [""])
sketch10.MapMode = "FlatFace"
sketch10.AttachmentOffset = App.Placement(Vector(0, 0, -0.621 * 25.4), App.Rotation())
sketch10.addGeometry([
    Part.LineSegment(Vector(22.2, 17.5, 0), Vector(22.2, -17.5, 0)),  # 0
    Part.ArcOfCircle(Part.Circle(Vector(17.5, -17.5, 0), Vector(0, 0, 1), 4.8), math.radians(-90), math.radians(0)),  # 1
    Part.LineSegment(Vector(17.5, -22.2, 0), Vector(-17.5, -22.2, 0)),  # 2
    Part.ArcOfCircle(Part.Circle(Vector(-17.5, -17.5, 0), Vector(0, 0, 1), 4.8), math.radians(180), math.radians(270)),  # 3
    Part.LineSegment(Vector(-22.2, -17.5, 0), Vector(-22.2, 17.5, 0)),  # 4
    Part.ArcOfCircle(Part.Circle(Vector(-17.5, 17.5, 0), Vector(0, 0, 1), 4.8), math.radians(90), math.radians(180)),  # 5
    Part.LineSegment(Vector(-17.5, 22.2, 0), Vector(17.5, 22.2, 0)),  # 6
    Part.ArcOfCircle(Part.Circle(Vector(17.5, 17.5, 0), Vector(0, 0, 1), 4.8), math.radians(0), math.radians(90)),  # 7
    Part.Circle(Vector(0, 0, 0), Vector(0, 0, 1), 19.1),  # 8
    Part.Circle(Vector(17.5, -17.5, 0), Vector(0, 0, 1), 1.6),  # 9
], False)
sketch10.addConstraint([
    Sketcher.Constraint("Tangent", 0, 2, 1, 2),
    Sketcher.Constraint("Tangent", 1, 1, 2, 1),
    Sketcher.Constraint("Tangent", 2, 2, 3, 2),
    Sketcher.Constraint("Tangent", 3, 1, 4, 1),
    Sketcher.Constraint("Tangent", 4, 2, 5, 2),
    Sketcher.Constraint("Tangent", 5, 1, 6, 1),
    Sketcher.Constraint("Tangent", 6, 2, 7, 2),
    Sketcher.Constraint("Tangent", 7, 1, 0, 1),
    Sketcher.Constraint("Vertical", 0),
    Sketcher.Constraint("Horizontal", 2),
    Sketcher.Constraint("Vertical", 4),
    Sketcher.Constraint("Horizontal", 6),
    Sketcher.Constraint("Coincident", 8, 3, -1, 1),
    Sketcher.Constraint("Coincident", 9, 3, 1, 3),
    Sketcher.Constraint("Equal", 1, 3),
    Sketcher.Constraint("Equal", 3, 5),
    Sketcher.Constraint("Equal", 5, 7),
    Sketcher.Constraint("Symmetric", 1, 3, 5, 3, -1, 1),
    Sketcher.Constraint("Equal", 6, 0),
    Sketcher.Constraint("Diameter", 8, Q("1.5 in")),
    Sketcher.Constraint("Diameter", 9, Q("0.125 in")),
    Sketcher.Constraint("Radius", 1, Q("0.1875 in")),
    Sketcher.Constraint("DistanceX", 2, 2, 2, 1, Q("1.375 in")),
])
sketch10.setExpression("Constraints[19]", "Params.sketch10_diameter")
sketch10.setExpression("Constraints[20]", "Params.sketch10_diameter2")
sketch10.setExpression("Constraints[21]", "Params.sketch10_radius")
sketch10.setExpression("Constraints[22]", "Params.sketch10_width")
pocket4 = body2.newObject("PartDesign::Pocket", "Pocket003")
pocket4.Profile = sketch10
pocket4.setExpression("Length", "Params.pocket4_length")
pocket4.Reversed = True
body3 = doc.addObject("PartDesign::Body", "Body002")

# Sketch on XY plane
sketch11 = body3.newObject("Sketcher::SketchObject", "Sketch010")
sketch11.AttachmentSupport = (doc.getObject("XY_Plane002"), [""])
sketch11.MapMode = "FlatFace"
sketch11.AttachmentOffset = App.Placement(Vector(0, 0, 0.35 * 25.4), App.Rotation())
sketch11.addGeometry([
    Part.ArcOfCircle(Part.Circle(Vector(17.5, -17.5, 0), Vector(0, 0, 1), 4.8), math.radians(-90), math.radians(0)),  # 0
    Part.LineSegment(Vector(22.2, -17.5, 0), Vector(22.2, 17.5, 0)),  # 1
    Part.ArcOfCircle(Part.Circle(Vector(17.5, 17.5, 0), Vector(0, 0, 1), 4.8), math.radians(0), math.radians(90)),  # 2
    Part.LineSegment(Vector(17.5, 22.2, 0), Vector(-17.5, 22.2, 0)),  # 3
    Part.ArcOfCircle(Part.Circle(Vector(-17.5, 17.5, 0), Vector(0, 0, 1), 4.8), math.radians(90), math.radians(180)),  # 4
    Part.LineSegment(Vector(-22.2, 17.5, 0), Vector(-22.2, -17.5, 0)),  # 5
    Part.ArcOfCircle(Part.Circle(Vector(-17.5, -17.5, 0), Vector(0, 0, 1), 4.8), math.radians(180), math.radians(270)),  # 6
    Part.LineSegment(Vector(-17.5, -22.2, 0), Vector(17.5, -22.2, 0)),  # 7
    Part.Circle(Vector(-17.5, -17.5, 0), Vector(0, 0, 1), 1.6),  # 8
    Part.Circle(Vector(17.5, -17.5, 0), Vector(0, 0, 1), 1.6),  # 9
    Part.Circle(Vector(-17.5, 17.5, 0), Vector(0, 0, 1), 1.6),  # 10
    Part.Circle(Vector(17.5, 17.5, 0), Vector(0, 0, 1), 1.6),  # 11
], False)
sketch11.addConstraint([
    Sketcher.Constraint("Tangent", 0, 2, 1, 1),
    Sketcher.Constraint("Tangent", 1, 2, 2, 1),
    Sketcher.Constraint("Tangent", 2, 2, 3, 1),
    Sketcher.Constraint("Tangent", 3, 2, 4, 1),
    Sketcher.Constraint("Tangent", 4, 2, 5, 1),
    Sketcher.Constraint("Tangent", 5, 2, 6, 1),
    Sketcher.Constraint("Tangent", 6, 2, 7, 1),
    Sketcher.Constraint("Tangent", 7, 2, 0, 1),
    Sketcher.Constraint("Vertical", 1),
    Sketcher.Constraint("Horizontal", 3),
    Sketcher.Constraint("Vertical", 5),
    Sketcher.Constraint("Horizontal", 7),
    Sketcher.Constraint("Coincident", 8, 3, 6, 3),
    Sketcher.Constraint("Coincident", 9, 3, 0, 3),
    Sketcher.Constraint("Coincident", 10, 3, 4, 3),
    Sketcher.Constraint("Coincident", 11, 3, 2, 3),
    Sketcher.Constraint("Equal", 0, 2),
    Sketcher.Constraint("Equal", 2, 4),
    Sketcher.Constraint("Equal", 4, 6),
    Sketcher.Constraint("Equal", 8, 9),
    Sketcher.Constraint("Equal", 9, 10),
    Sketcher.Constraint("Equal", 10, 11),
    Sketcher.Constraint("Symmetric", 0, 3, 4, 3, -1, 1),
    Sketcher.Constraint("Equal", 7, 1),
    Sketcher.Constraint("Diameter", 8, Q("0.125 in")),
    Sketcher.Constraint("Radius", 0, Q("0.1875 in")),
    Sketcher.Constraint("DistanceX", 3, 2, 3, 1, Q("1.375 in")),
])
sketch11.setExpression("Constraints[24]", "Params.sketch11_diameter")
sketch11.setExpression("Constraints[25]", "Params.sketch11_radius")
sketch11.setExpression("Constraints[26]", "Params.sketch11_width")
pad7 = body3.newObject("PartDesign::Pad", "Pad006")
pad7.Profile = sketch11
pad7.setExpression("Length", "Params.pad7_length")

doc.recompute()
